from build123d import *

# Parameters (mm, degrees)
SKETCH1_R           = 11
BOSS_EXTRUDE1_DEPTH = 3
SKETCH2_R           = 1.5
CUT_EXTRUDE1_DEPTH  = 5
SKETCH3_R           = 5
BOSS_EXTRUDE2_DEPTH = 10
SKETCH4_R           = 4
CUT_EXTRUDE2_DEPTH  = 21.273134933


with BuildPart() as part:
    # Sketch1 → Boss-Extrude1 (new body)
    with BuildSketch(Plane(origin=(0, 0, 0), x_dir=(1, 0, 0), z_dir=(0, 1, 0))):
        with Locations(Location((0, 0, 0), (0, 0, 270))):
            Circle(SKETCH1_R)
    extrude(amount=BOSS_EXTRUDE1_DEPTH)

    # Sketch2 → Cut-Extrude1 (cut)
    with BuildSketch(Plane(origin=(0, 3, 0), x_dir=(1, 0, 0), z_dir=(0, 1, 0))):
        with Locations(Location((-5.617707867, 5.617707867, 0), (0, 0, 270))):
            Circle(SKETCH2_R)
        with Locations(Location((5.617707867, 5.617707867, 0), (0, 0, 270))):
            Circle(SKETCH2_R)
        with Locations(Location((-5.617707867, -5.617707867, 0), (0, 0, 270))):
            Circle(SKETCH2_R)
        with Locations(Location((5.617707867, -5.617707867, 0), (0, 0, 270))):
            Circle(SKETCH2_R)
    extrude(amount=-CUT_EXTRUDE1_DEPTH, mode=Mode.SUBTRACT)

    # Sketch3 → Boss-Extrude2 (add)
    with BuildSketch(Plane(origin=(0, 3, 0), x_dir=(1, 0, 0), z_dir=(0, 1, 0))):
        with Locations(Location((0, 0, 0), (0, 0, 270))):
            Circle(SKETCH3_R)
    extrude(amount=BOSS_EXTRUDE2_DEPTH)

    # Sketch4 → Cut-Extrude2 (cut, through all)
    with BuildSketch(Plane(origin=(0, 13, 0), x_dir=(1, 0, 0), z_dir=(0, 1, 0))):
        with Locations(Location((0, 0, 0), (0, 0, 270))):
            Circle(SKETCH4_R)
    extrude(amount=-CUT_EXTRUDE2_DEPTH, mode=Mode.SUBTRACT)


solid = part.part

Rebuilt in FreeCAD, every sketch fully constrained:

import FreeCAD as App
import Part
import Sketcher

doc = App.newDocument("Part")
params = doc.addObject("Spreadsheet::Sheet", "Params")
for row, (alias, value) in enumerate([
    ("sketch1_diameter", "22 mm"),
    ("pad1_length", "3 mm"),
    ("sketch2_diameter", "3 mm"),
    ("pocket1_length", "5 mm"),
    ("sketch3_diameter", "10 mm"),
    ("pad2_length", "10 mm"),
    ("sketch4_diameter", "8 mm"),
], start=1):
    params.set(f"A{row}", alias)
    params.set(f"B{row}", "=" + value)
    params.setAlias(f"B{row}", alias)

body = doc.addObject("PartDesign::Body", "Body")

# Sketch on XZ plane
sketch1 = body.newObject("Sketcher::SketchObject", "Sketch")
sketch1.AttachmentSupport = (doc.getObject("XZ_Plane"), [""])
sketch1.MapMode = "FlatFace"
sketch1.addGeometry(Part.Circle(App.Vector(0, 0, 0), App.Vector(0, 0, 1), 11), False)
sketch1.addConstraint([
    Sketcher.Constraint("Coincident", 0, 3, -1, 1),
    Sketcher.Constraint("Diameter", 0, 22.0),
])
sketch1.setExpression("Constraints[1]", "Params.sketch1_diameter")
pad1 = body.newObject("PartDesign::Pad", "Pad")
pad1.Profile = sketch1
pad1.setExpression("Length", "Params.pad1_length")
pad1.Reversed = True

# Sketch on XZ plane
sketch2 = body.newObject("Sketcher::SketchObject", "Sketch001")
sketch2.AttachmentSupport = (doc.getObject("XZ_Plane"), [""])
sketch2.MapMode = "FlatFace"
sketch2.AttachmentOffset = App.Placement(App.Vector(0, 0, -3), App.Rotation())
sketch2.addGeometry([
    Part.Circle(App.Vector(-5.617708, -5.617708, 0), App.Vector(0, 0, 1), 1.5),
    Part.Circle(App.Vector(5.617708, -5.617708, 0), App.Vector(0, 0, 1), 1.5),
    Part.Circle(App.Vector(-5.617708, 5.617708, 0), App.Vector(0, 0, 1), 1.5),
    Part.Circle(App.Vector(5.617708, 5.617708, 0), App.Vector(0, 0, 1), 1.5),
], False)
sketch2.addConstraint([
    Sketcher.Constraint("Equal", 0, 1),
    Sketcher.Constraint("Equal", 1, 2),
    Sketcher.Constraint("Equal", 2, 3),
    Sketcher.Constraint("Symmetric", 1, 3, 2, 3, -1, 1),
    Sketcher.Constraint("Symmetric", 0, 3, 3, 3, -1, 1),
    Sketcher.Constraint("Symmetric", 0, 3, 1, 3, -2),
    Sketcher.Constraint("Diameter", 0, 3.0),
    Sketcher.Constraint("DistanceX", 0, 3, -1, 1, 5.617708),
    Sketcher.Constraint("DistanceY", 0, 3, -1, 1, 5.617708),
])
sketch2.setExpression("Constraints[6]", "Params.sketch2_diameter")
pocket1 = body.newObject("PartDesign::Pocket", "Pocket")
pocket1.Profile = sketch2
pocket1.setExpression("Length", "Params.pocket1_length")
pocket1.Reversed = True

# Sketch on XZ plane
sketch3 = body.newObject("Sketcher::SketchObject", "Sketch002")
sketch3.AttachmentSupport = (doc.getObject("XZ_Plane"), [""])
sketch3.MapMode = "FlatFace"
sketch3.AttachmentOffset = App.Placement(App.Vector(0, 0, -3), App.Rotation())
sketch3.addGeometry(Part.Circle(App.Vector(0, 0, 0), App.Vector(0, 0, 1), 5), False)
sketch3.addConstraint([
    Sketcher.Constraint("Coincident", 0, 3, -1, 1),
    Sketcher.Constraint("Diameter", 0, 10.0),
])
sketch3.setExpression("Constraints[1]", "Params.sketch3_diameter")
pad2 = body.newObject("PartDesign::Pad", "Pad001")
pad2.Profile = sketch3
pad2.setExpression("Length", "Params.pad2_length")
pad2.Reversed = True

# Sketch on XZ plane
sketch4 = body.newObject("Sketcher::SketchObject", "Sketch003")
sketch4.AttachmentSupport = (doc.getObject("XZ_Plane"), [""])
sketch4.MapMode = "FlatFace"
sketch4.AttachmentOffset = App.Placement(App.Vector(0, 0, -13), App.Rotation())
sketch4.addGeometry(Part.Circle(App.Vector(0, 0, 0), App.Vector(0, 0, 1), 4), False)
sketch4.addConstraint([
    Sketcher.Constraint("Coincident", 0, 3, -1, 1),
    Sketcher.Constraint("Diameter", 0, 8.0),
])
sketch4.setExpression("Constraints[1]", "Params.sketch4_diameter")
pocket2 = body.newObject("PartDesign::Pocket", "Pocket001")
pocket2.Profile = sketch4
pocket2.Type = "ThroughAll"
pocket2.Reversed = True

doc.recompute()
